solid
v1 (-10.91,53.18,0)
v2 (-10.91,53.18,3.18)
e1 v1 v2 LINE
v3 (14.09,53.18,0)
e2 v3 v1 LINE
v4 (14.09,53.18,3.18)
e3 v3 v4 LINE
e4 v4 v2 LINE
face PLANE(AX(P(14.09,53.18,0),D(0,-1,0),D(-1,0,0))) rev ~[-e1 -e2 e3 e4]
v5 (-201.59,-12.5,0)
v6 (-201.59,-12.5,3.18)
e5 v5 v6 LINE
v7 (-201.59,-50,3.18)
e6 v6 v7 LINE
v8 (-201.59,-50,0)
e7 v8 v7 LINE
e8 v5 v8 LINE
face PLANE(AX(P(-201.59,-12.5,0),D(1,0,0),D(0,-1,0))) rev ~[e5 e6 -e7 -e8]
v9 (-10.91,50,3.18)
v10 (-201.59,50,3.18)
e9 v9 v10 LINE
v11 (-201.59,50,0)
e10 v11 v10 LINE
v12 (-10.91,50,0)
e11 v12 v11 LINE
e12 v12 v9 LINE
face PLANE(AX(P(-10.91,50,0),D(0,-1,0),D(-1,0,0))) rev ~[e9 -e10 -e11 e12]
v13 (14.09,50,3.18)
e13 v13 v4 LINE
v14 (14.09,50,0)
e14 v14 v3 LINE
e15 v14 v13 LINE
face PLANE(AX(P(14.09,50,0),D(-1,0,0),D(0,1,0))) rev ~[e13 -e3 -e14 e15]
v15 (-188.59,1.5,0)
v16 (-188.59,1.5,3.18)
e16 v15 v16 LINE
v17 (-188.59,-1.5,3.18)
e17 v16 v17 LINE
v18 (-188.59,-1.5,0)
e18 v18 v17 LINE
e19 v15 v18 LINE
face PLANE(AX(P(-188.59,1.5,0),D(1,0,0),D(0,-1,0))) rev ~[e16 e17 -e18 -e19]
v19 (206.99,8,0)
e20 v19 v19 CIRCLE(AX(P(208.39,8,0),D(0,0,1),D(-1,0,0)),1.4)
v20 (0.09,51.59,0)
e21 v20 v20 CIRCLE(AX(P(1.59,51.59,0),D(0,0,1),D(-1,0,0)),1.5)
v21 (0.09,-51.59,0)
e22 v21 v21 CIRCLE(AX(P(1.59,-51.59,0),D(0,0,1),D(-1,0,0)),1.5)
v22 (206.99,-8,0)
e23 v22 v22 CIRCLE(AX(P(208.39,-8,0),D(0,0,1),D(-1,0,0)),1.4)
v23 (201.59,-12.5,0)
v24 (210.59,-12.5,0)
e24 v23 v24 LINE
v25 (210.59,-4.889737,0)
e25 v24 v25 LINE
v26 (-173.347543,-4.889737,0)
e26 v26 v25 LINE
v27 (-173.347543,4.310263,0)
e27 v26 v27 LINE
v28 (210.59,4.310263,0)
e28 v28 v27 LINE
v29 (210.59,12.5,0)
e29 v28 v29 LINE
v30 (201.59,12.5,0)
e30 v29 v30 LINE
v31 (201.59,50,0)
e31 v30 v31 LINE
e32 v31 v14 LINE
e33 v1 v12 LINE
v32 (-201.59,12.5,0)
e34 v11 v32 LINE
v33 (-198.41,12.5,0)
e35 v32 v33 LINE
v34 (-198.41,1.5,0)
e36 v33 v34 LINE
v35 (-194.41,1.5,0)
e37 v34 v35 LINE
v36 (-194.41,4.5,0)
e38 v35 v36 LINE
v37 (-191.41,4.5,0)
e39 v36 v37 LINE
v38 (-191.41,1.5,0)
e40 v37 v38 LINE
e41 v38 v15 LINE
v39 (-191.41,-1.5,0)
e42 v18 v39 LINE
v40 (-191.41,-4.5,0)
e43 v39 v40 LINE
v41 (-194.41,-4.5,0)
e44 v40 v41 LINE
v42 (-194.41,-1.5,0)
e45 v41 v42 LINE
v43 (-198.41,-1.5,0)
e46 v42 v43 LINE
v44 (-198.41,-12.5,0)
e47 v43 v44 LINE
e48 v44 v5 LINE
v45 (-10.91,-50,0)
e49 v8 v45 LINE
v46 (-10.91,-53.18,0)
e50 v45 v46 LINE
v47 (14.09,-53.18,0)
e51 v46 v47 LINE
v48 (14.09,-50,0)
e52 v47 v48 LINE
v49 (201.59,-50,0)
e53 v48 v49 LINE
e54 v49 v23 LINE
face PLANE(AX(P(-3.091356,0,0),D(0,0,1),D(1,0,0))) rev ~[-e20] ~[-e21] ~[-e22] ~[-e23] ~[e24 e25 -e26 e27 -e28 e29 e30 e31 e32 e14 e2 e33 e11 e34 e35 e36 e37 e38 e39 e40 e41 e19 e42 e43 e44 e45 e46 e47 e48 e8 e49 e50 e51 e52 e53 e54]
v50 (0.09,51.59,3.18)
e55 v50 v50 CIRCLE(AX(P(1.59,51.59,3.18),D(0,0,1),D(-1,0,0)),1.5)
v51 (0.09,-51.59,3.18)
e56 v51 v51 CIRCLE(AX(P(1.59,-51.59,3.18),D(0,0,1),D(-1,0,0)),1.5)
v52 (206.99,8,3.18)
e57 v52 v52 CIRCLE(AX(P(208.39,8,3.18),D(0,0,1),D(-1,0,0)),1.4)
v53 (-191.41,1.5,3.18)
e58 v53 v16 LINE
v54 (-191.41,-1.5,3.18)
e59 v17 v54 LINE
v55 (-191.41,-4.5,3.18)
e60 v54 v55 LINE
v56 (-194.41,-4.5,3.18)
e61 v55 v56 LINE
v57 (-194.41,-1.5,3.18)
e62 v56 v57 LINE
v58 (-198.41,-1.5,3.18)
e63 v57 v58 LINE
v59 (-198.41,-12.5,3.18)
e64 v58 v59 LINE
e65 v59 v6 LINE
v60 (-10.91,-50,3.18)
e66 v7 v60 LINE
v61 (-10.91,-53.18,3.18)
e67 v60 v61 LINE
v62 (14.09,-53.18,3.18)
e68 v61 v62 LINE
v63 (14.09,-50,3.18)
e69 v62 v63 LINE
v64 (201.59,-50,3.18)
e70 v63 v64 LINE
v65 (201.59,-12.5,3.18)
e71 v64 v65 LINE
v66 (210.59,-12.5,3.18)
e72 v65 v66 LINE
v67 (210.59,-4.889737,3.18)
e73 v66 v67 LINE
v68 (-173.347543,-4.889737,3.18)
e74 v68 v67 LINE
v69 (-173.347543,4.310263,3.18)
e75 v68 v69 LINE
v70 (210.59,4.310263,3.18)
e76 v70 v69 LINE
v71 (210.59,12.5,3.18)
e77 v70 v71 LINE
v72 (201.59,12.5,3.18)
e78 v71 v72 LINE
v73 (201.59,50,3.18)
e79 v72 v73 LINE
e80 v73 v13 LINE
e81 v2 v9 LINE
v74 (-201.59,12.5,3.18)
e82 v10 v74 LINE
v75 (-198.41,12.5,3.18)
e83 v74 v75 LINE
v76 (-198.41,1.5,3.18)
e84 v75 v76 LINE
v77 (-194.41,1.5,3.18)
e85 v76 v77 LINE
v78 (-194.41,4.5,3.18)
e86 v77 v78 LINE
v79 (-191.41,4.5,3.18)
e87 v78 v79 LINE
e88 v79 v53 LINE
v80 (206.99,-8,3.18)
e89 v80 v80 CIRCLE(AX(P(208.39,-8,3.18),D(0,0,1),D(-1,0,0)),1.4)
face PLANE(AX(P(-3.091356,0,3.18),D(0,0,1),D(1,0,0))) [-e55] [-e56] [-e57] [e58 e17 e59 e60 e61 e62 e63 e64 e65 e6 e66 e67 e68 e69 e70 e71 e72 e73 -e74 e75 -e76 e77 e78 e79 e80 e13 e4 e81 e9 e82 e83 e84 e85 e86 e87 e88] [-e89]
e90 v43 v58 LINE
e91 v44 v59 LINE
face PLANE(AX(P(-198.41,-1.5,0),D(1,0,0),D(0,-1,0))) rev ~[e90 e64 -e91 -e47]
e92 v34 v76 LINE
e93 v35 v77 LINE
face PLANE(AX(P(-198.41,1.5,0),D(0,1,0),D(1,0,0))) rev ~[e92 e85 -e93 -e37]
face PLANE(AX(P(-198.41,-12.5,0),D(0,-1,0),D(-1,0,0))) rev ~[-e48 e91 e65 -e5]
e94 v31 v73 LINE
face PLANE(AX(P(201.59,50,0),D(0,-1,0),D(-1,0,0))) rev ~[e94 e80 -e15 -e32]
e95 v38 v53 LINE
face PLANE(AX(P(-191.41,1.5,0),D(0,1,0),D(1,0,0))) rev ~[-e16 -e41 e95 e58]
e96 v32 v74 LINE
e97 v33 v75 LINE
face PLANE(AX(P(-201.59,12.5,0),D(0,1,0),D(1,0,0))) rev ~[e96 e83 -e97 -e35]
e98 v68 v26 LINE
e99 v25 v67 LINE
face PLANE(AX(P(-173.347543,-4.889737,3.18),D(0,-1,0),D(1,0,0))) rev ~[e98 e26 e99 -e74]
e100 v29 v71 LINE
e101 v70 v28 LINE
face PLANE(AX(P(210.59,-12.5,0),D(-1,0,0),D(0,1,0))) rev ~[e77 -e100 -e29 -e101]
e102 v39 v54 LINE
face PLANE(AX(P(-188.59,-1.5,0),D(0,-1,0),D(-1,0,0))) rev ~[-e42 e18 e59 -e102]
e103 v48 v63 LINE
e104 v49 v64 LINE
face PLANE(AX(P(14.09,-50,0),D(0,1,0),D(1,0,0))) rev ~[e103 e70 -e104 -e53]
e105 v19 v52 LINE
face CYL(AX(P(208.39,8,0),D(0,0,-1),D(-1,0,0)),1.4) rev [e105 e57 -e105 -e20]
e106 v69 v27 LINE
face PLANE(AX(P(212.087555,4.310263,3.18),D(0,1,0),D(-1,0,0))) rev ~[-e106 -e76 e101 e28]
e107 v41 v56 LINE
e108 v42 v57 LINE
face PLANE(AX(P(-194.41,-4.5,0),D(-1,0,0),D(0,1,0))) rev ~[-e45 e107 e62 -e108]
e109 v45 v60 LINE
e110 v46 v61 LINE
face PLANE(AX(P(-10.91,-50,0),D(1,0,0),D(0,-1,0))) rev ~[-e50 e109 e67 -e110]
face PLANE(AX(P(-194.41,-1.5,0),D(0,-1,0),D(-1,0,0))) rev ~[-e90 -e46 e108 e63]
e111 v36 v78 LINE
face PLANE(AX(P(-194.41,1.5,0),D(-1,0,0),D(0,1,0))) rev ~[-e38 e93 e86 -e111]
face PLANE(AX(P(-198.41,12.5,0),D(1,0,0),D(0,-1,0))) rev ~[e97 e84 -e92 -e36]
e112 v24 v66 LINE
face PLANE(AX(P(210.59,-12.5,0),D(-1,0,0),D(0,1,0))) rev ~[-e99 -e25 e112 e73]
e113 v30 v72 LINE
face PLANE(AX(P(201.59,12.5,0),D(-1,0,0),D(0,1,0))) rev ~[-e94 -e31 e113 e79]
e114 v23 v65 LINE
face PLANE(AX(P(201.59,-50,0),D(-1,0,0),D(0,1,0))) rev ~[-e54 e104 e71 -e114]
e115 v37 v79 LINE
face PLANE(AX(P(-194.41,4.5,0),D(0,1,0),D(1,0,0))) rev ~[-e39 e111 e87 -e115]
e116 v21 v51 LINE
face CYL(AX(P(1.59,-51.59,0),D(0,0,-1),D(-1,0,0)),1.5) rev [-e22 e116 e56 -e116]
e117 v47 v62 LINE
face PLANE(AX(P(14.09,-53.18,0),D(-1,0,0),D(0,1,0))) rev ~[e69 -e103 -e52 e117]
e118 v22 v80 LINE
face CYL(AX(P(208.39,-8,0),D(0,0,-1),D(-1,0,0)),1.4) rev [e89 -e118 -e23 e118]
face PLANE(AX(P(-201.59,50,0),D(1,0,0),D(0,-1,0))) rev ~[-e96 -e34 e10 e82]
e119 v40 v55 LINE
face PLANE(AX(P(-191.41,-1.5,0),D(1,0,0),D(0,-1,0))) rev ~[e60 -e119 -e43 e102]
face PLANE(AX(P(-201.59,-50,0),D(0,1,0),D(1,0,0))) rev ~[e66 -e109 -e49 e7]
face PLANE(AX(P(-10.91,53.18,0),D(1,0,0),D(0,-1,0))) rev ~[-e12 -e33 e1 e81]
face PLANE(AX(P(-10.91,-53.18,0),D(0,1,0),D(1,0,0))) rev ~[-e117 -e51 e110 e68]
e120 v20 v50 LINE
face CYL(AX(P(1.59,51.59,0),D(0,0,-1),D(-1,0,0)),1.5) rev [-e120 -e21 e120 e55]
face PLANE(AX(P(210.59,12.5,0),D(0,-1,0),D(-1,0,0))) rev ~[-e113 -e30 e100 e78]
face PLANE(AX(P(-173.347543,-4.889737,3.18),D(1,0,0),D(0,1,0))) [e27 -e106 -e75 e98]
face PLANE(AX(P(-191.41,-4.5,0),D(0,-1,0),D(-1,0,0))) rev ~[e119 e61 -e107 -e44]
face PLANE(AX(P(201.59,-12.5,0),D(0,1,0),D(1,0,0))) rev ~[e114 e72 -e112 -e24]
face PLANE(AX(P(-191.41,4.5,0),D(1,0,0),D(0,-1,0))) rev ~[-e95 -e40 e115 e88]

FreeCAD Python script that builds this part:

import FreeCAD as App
import Part
import Sketcher

V = App.Vector
Q = App.Units.Quantity

doc = App.newDocument("Part")
body = doc.addObject("PartDesign::Body", "Body")

# Sketch on XY plane
sketch1 = body.newObject("Sketcher::SketchObject", "Sketch")
sketch1.AttachmentSupport = (doc.getObject("XY_Plane"), [""])
sketch1.MapMode = "FlatFace"
sketch1.addGeometry(Part.LineSegment(V(-201.59, 50, 0), V(-201.59, 12.5, 0)), False)
sketch1.addGeometry(Part.LineSegment(V(-201.59, 12.5, 0), V(-198.41, 12.5, 0)), False)
sketch1.addGeometry(Part.LineSegment(V(-198.41, 12.5, 0), V(-198.41, 1.5, 0)), False)
sketch1.addGeometry(Part.LineSegment(V(-198.41, 1.5, 0), V(-194.41, 1.5, 0)), False)
sketch1.addGeometry(Part.LineSegment(V(-194.41, 1.5, 0), V(-194.41, 4.5, 0)), False)
sketch1.addGeometry(Part.LineSegment(V(-194.41, 4.5, 0), V(-191.41, 4.5, 0)), False)
sketch1.addGeometry(Part.LineSegment(V(-191.41, 4.5, 0), V(-191.41, 1.5, 0)), False)
sketch1.addGeometry(Part.LineSegment(V(-191.41, 1.5, 0), V(-188.59, 1.5, 0)), False)
sketch1.addGeometry(Part.LineSegment(V(-188.59, 1.5, 0), V(-188.59, -1.5, 0)), False)
sketch1.addGeometry(Part.LineSegment(V(-188.59, -1.5, 0), V(-191.41, -1.5, 0)), False)
sketch1.addGeometry(Part.LineSegment(V(-191.41, -1.5, 0), V(-191.41, -4.5, 0)), False)
sketch1.addGeometry(Part.LineSegment(V(-191.41, -4.5, 0), V(-194.41, -4.5, 0)), False)
sketch1.addGeometry(Part.LineSegment(V(-194.41, -4.5, 0), V(-194.41, -1.5, 0)), False)
sketch1.addGeometry(Part.LineSegment(V(-194.41, -1.5, 0), V(-198.41, -1.5, 0)), False)
sketch1.addGeometry(Part.LineSegment(V(-198.41, -1.5, 0), V(-198.41, -12.5, 0)), False)
sketch1.addGeometry(Part.LineSegment(V(-198.41, -12.5, 0), V(-201.59, -12.5, 0)), False)
sketch1.addGeometry(Part.LineSegment(V(-201.59, -12.5, 0), V(-201.59, -50, 0)), False)
sketch1.addGeometry(Part.LineSegment(V(-201.59, -50, 0), V(-10.91, -50, 0)), False)
sketch1.addGeometry(Part.LineSegment(V(-10.91, -50, 0), V(-10.91, -53.18, 0)), False)
sketch1.addGeometry(Part.LineSegment(V(-10.91, -53.18, 0), V(14.09, -53.18, 0)), False)
sketch1.addGeometry(Part.LineSegment(V(14.09, -53.18, 0), V(14.09, -50, 0)), False)
sketch1.addGeometry(Part.LineSegment(V(14.09, -50, 0), V(201.59, -50, 0)), False)
sketch1.addGeometry(Part.LineSegment(V(201.59, -50, 0), V(201.59, -12.5, 0)), False)
sketch1.addGeometry(Part.LineSegment(V(201.59, -12.5, 0), V(210.59, -12.5, 0)), False)
sketch1.addGeometry(Part.LineSegment(V(210.59, -12.5, 0), V(210.59, 12.5, 0)), False)
sketch1.addGeometry(Part.LineSegment(V(210.59, 12.5, 0), V(201.59, 12.5, 0)), False)
sketch1.addGeometry(Part.LineSegment(V(201.59, 12.5, 0), V(201.59, 50, 0)), False)
sketch1.addGeometry(Part.LineSegment(V(201.59, 50, 0), V(14.09, 50, 0)), False)
sketch1.addGeometry(Part.LineSegment(V(14.09, 50, 0), V(14.09, 53.18, 0)), False)
sketch1.addGeometry(Part.LineSegment(V(14.09, 53.18, 0), V(-10.91, 53.18, 0)), False)
sketch1.addGeometry(Part.LineSegment(V(-10.91, 53.18, 0), V(-10.91, 50, 0)), False)
sketch1.addGeometry(Part.LineSegment(V(-10.91, 50, 0), V(-201.59, 50, 0)), False)
sketch1.addGeometry(Part.Circle(V(1.59, -51.59, 0), V(0, 0, 1), 1.5), False)
sketch1.addGeometry(Part.Circle(V(208.39, -8, 0), V(0, 0, 1), 1.4), False)
sketch1.addGeometry(Part.Circle(V(1.59, 51.59, 0), V(0, 0, 1), 1.5), False)
sketch1.addGeometry(Part.Circle(V(208.39, 8, 0), V(0, 0, 1), 1.4), False)
sketch1.addConstraint(Sketcher.Constraint("Coincident", 0, 2, 1, 1))
sketch1.addConstraint(Sketcher.Constraint("Coincident", 1, 2, 2, 1))
sketch1.addConstraint(Sketcher.Constraint("Coincident", 2, 2, 3, 1))
sketch1.addConstraint(Sketcher.Constraint("Coincident", 3, 2, 4, 1))
sketch1.addConstraint(Sketcher.Constraint("Coincident", 4, 2, 5, 1))
sketch1.addConstraint(Sketcher.Constraint("Coincident", 5, 2, 6, 1))
sketch1.addConstraint(Sketcher.Constraint("Coincident", 6, 2, 7, 1))
sketch1.addConstraint(Sketcher.Constraint("Coincident", 7, 2, 8, 1))
sketch1.addConstraint(Sketcher.Constraint("Coincident", 8, 2, 9, 1))
sketch1.addConstraint(Sketcher.Constraint("Coincident", 9, 2, 10, 1))
sketch1.addConstraint(Sketcher.Constraint("Coincident", 10, 2, 11, 1))
sketch1.addConstraint(Sketcher.Constraint("Coincident", 11, 2, 12, 1))
sketch1.addConstraint(Sketcher.Constraint("Coincident", 12, 2, 13, 1))
sketch1.addConstraint(Sketcher.Constraint("Coincident", 13, 2, 14, 1))
sketch1.addConstraint(Sketcher.Constraint("Coincident", 14, 2, 15, 1))
sketch1.addConstraint(Sketcher.Constraint("Coincident", 15, 2, 16, 1))
sketch1.addConstraint(Sketcher.Constraint("Coincident", 16, 2, 17, 1))
sketch1.addConstraint(Sketcher.Constraint("Coincident", 17, 2, 18, 1))
sketch1.addConstraint(Sketcher.Constraint("Coincident", 18, 2, 19, 1))
sketch1.addConstraint(Sketcher.Constraint("Coincident", 19, 2, 20, 1))
sketch1.addConstraint(Sketcher.Constraint("Coincident", 20, 2, 21, 1))
sketch1.addConstraint(Sketcher.Constraint("Coincident", 21, 2, 22, 1))
sketch1.addConstraint(Sketcher.Constraint("Coincident", 22, 2, 23, 1))
sketch1.addConstraint(Sketcher.Constraint("Coincident", 23, 2, 24, 1))
sketch1.addConstraint(Sketcher.Constraint("Coincident", 24, 2, 25, 1))
sketch1.addConstraint(Sketcher.Constraint("Coincident", 25, 2, 26, 1))
sketch1.addConstraint(Sketcher.Constraint("Coincident", 26, 2, 27, 1))
sketch1.addConstraint(Sketcher.Constraint("Coincident", 27, 2, 28, 1))
sketch1.addConstraint(Sketcher.Constraint("Coincident", 28, 2, 29, 1))
sketch1.addConstraint(Sketcher.Constraint("Coincident", 29, 2, 30, 1))
sketch1.addConstraint(Sketcher.Constraint("Coincident", 30, 2, 31, 1))
sketch1.addConstraint(Sketcher.Constraint("Coincident", 31, 2, 0, 1))
sketch1.addConstraint(Sketcher.Constraint("Vertical", 0))
sketch1.addConstraint(Sketcher.Constraint("Horizontal", 1))
sketch1.addConstraint(Sketcher.Constraint("Vertical", 2))
sketch1.addConstraint(Sketcher.Constraint("Horizontal", 3))
sketch1.addConstraint(Sketcher.Constraint("Vertical", 4))
sketch1.addConstraint(Sketcher.Constraint("Horizontal", 5))
sketch1.addConstraint(Sketcher.Constraint("Vertical", 6))
sketch1.addConstraint(Sketcher.Constraint("Horizontal", 7))
sketch1.addConstraint(Sketcher.Constraint("Vertical", 8))
sketch1.addConstraint(Sketcher.Constraint("Horizontal", 9))
sketch1.addConstraint(Sketcher.Constraint("Vertical", 10))
sketch1.addConstraint(Sketcher.Constraint("Horizontal", 11))
sketch1.addConstraint(Sketcher.Constraint("Vertical", 12))
sketch1.addConstraint(Sketcher.Constraint("Horizontal", 13))
sketch1.addConstraint(Sketcher.Constraint("Vertical", 14))
sketch1.addConstraint(Sketcher.Constraint("Horizontal", 15))
sketch1.addConstraint(Sketcher.Constraint("Vertical", 16))
sketch1.addConstraint(Sketcher.Constraint("Horizontal", 17))
sketch1.addConstraint(Sketcher.Constraint("Vertical", 18))
sketch1.addConstraint(Sketcher.Constraint("Horizontal", 19))
sketch1.addConstraint(Sketcher.Constraint("Vertical", 20))
sketch1.addConstraint(Sketcher.Constraint("Horizontal", 21))
sketch1.addConstraint(Sketcher.Constraint("Vertical", 22))
sketch1.addConstraint(Sketcher.Constraint("Horizontal", 23))
sketch1.addConstraint(Sketcher.Constraint("Vertical", 24))
sketch1.addConstraint(Sketcher.Constraint("Horizontal", 25))
sketch1.addConstraint(Sketcher.Constraint("Vertical", 26))
sketch1.addConstraint(Sketcher.Constraint("Horizontal", 27))
sketch1.addConstraint(Sketcher.Constraint("Vertical", 28))
sketch1.addConstraint(Sketcher.Constraint("Horizontal", 29))
sketch1.addConstraint(Sketcher.Constraint("Vertical", 30))
sketch1.addConstraint(Sketcher.Constraint("Horizontal", 31))
sketch1.addConstraint(Sketcher.Constraint("Equal", 32, 34))
sketch1.addConstraint(Sketcher.Constraint("Equal", 33, 35))
sketch1.addConstraint(Sketcher.Constraint("Symmetric", 0, 2, 22, 2, -1, 1))
sketch1.addConstraint(Sketcher.Constraint("Symmetric", 15, 2, 25, 2, -1, 1))
sketch1.addConstraint(Sketcher.Constraint("Symmetric", 16, 2, 21, 2, -2))
sketch1.addConstraint(Sketcher.Constraint("Symmetric", 32, 3, 34, 3, -1))
sketch1.addConstraint(Sketcher.Constraint("Symmetric", 33, 3, 35, 3, -1))
sketch1.addConstraint(Sketcher.Constraint("Symmetric", 6, 2, 9, 2, -1))
sketch1.addConstraint(Sketcher.Constraint("Symmetric", 4, 2, 11, 2, -1))
sketch1.addConstraint(Sketcher.Constraint("Symmetric", 2, 2, 13, 2, -1))
sketch1.addConstraint(Sketcher.Constraint("Symmetric", 20, 2, 27, 2, -1))
sketch1.addConstraint(Sketcher.Constraint("Symmetric", 18, 2, 29, 2, -1))
sketch1.addConstraint(Sketcher.Constraint("Horizontal", 3, 2, 6, 2))
sketch1.addConstraint(Sketcher.Constraint("Horizontal", 15, 2, 22, 2))
sketch1.addConstraint(Sketcher.Constraint("Horizontal", 27, 2, 30, 2))
sketch1.addConstraint(Sketcher.Constraint("Equal", 11, 4))
sketch1.addConstraint(Sketcher.Constraint("Equal", 6, 8))
sketch1.addConstraint(Sketcher.Constraint("Equal", 15, 18))
sketch1.addConstraint(Sketcher.Constraint("Equal", 29, 24))
sketch1.addConstraint(Sketcher.Constraint("Diameter", 32, Q("3 mm")))
sketch1.addConstraint(Sketcher.Constraint("Diameter", 33, Q("2.8 mm")))
sketch1.addConstraint(Sketcher.Constraint("DistanceX", 3, 1, 3, 2, Q("4 mm")))
sketch1.addConstraint(Sketcher.Constraint("DistanceX", 5, 1, 5, 2, Q("3 mm")))
sketch1.addConstraint(Sketcher.Constraint("DistanceX", 19, 1, 19, 2, Q("25 mm")))
sketch1.addConstraint(Sketcher.Constraint("DistanceX", 23, 1, 23, 2, Q("9 mm")))
sketch1.addConstraint(Sketcher.Constraint("DistanceX", 21, 1, 21, 2, Q("187.5 mm")))
sketch1.addConstraint(Sketcher.Constraint("DistanceY", 0, 2, 0, 1, Q("37.5 mm")))
sketch1.addConstraint(Sketcher.Constraint("DistanceY", 33, 3, -1, 1, Q("8 mm")))
sketch1.addConstraint(Sketcher.Constraint("DistanceX", 1, 2, 34, 3, Q("200 mm")))
sketch1.addConstraint(Sketcher.Constraint("DistanceX", 32, 3, 21, 2, Q("200 mm")))
sketch1.addConstraint(Sketcher.Constraint("DistanceX", 1, 1, 1, 2, Q("3.18 mm")))
sketch1.addConstraint(Sketcher.Constraint("DistanceX", 7, 1, 7, 2, Q("2.82 mm")))
sketch1.addConstraint(Sketcher.Constraint("DistanceX", 32, 3, 33, 3, Q("206.8 mm")))
sketch1.addConstraint(Sketcher.Constraint("DistanceY", 32, 3, -1, 1, Q("51.59 mm")))
pad1 = body.newObject("PartDesign::Pad", "Pad")
pad1.Profile = sketch1
pad1.Length = 3.18

# Sketch on XY plane
sketch2 = body.newObject("Sketcher::SketchObject", "Sketch001")
sketch2.AttachmentSupport = (doc.getObject("XY_Plane"), [""])
sketch2.MapMode = "FlatFace"
sketch2.AttachmentOffset = App.Placement(V(0, 0, 3.18), App.Rotation())
sketch2.addGeometry(Part.LineSegment(V(212.087555, 4.310263, 0), V(-173.347543, 4.310263, 0)), False)
sketch2.addGeometry(Part.LineSegment(V(-173.347543, 4.310263, 0), V(-173.347543, -4.889737, 0)), False)
sketch2.addGeometry(Part.LineSegment(V(-173.347543, -4.889737, 0), V(212.087555, -4.889737, 0)), False)
sketch2.addGeometry(Part.LineSegment(V(212.087555, -4.889737, 0), V(212.087555, 4.310263, 0)), False)
sketch2.addConstraint(Sketcher.Constraint("Coincident", 0, 2, 1, 1))
sketch2.addConstraint(Sketcher.Constraint("Coincident", 1, 2, 2, 1))
sketch2.addConstraint(Sketcher.Constraint("Coincident", 2, 2, 3, 1))
sketch2.addConstraint(Sketcher.Constraint("Coincident", 3, 2, 0, 1))
sketch2.addConstraint(Sketcher.Constraint("Horizontal", 0))
sketch2.addConstraint(Sketcher.Constraint("Vertical", 1))
sketch2.addConstraint(Sketcher.Constraint("Horizontal", 2))
sketch2.addConstraint(Sketcher.Constraint("Vertical", 3))
sketch2.addConstraint(Sketcher.Constraint("DistanceY", 1, 2, 1, 1, Q("9.2 mm")))
sketch2.addConstraint(Sketcher.Constraint("DistanceX", 0, 2, 0, 1, Q("385.435098 mm")))
sketch2.addConstraint(Sketcher.Constraint("DistanceX", 0, 2, -1, 1, Q("173.347543 mm")))
sketch2.addConstraint(Sketcher.Constraint("DistanceY", -1, 1, 0, 2, Q("4.310263 mm")))
pocket1 = body.newObject("PartDesign::Pocket", "Pocket")
pocket1.Profile = sketch2
pocket1.Length = 10

doc.recompute()
